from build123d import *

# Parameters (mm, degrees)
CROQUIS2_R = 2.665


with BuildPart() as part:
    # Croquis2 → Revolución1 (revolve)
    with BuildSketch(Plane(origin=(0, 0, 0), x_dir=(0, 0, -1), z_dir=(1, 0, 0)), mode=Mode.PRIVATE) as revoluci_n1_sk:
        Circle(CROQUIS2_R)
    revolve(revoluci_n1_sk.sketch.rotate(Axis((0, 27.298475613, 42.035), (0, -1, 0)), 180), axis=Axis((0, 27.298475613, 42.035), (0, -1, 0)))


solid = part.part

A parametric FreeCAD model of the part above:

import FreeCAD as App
import Part
import Sketcher
Q = App.Units.Quantity

doc = App.newDocument("Part")
body = doc.addObject("PartDesign::Body", "Body")

# Sketch on YZ plane
sketch1 = doc.addObject("Sketcher::SketchObject", "Sketch")
body.addObject(sketch1)
sketch1.AttachmentSupport = (doc.YZ_Plane, [""])
sketch1.MapMode = "FlatFace"
sketch1.addGeometry(Part.Circle(App.Vector(0, 0, 0), App.Vector(0, 0, 1), 2.7), False)
sketch1.addGeometry(Part.LineSegment(App.Vector(0, 42, 0), App.Vector(-10, 42, 0)), True)  # axis
sketch1.addConstraint([
    Sketcher.Constraint("Horizontal", 1),
    Sketcher.Constraint("Coincident", 0, 3, -1, 1),
    Sketcher.Constraint("PointOnObject", 1, 1, -2),
    Sketcher.Constraint("Diameter", 0, Q("5.33 mm")),
    Sketcher.Constraint("DistanceX", 1, 2, 1, 1, Q("10 mm")),
    Sketcher.Constraint("DistanceY", -1, 1, 1, 1, Q("42.035 mm")),
])
revolution = doc.addObject("PartDesign::Revolution", "Revolution")
body.addObject(revolution)
revolution.Profile = sketch1
revolution.ReferenceAxis = (sketch1, ["Axis0"])
revolution.Angle = 360

doc.recompute()
